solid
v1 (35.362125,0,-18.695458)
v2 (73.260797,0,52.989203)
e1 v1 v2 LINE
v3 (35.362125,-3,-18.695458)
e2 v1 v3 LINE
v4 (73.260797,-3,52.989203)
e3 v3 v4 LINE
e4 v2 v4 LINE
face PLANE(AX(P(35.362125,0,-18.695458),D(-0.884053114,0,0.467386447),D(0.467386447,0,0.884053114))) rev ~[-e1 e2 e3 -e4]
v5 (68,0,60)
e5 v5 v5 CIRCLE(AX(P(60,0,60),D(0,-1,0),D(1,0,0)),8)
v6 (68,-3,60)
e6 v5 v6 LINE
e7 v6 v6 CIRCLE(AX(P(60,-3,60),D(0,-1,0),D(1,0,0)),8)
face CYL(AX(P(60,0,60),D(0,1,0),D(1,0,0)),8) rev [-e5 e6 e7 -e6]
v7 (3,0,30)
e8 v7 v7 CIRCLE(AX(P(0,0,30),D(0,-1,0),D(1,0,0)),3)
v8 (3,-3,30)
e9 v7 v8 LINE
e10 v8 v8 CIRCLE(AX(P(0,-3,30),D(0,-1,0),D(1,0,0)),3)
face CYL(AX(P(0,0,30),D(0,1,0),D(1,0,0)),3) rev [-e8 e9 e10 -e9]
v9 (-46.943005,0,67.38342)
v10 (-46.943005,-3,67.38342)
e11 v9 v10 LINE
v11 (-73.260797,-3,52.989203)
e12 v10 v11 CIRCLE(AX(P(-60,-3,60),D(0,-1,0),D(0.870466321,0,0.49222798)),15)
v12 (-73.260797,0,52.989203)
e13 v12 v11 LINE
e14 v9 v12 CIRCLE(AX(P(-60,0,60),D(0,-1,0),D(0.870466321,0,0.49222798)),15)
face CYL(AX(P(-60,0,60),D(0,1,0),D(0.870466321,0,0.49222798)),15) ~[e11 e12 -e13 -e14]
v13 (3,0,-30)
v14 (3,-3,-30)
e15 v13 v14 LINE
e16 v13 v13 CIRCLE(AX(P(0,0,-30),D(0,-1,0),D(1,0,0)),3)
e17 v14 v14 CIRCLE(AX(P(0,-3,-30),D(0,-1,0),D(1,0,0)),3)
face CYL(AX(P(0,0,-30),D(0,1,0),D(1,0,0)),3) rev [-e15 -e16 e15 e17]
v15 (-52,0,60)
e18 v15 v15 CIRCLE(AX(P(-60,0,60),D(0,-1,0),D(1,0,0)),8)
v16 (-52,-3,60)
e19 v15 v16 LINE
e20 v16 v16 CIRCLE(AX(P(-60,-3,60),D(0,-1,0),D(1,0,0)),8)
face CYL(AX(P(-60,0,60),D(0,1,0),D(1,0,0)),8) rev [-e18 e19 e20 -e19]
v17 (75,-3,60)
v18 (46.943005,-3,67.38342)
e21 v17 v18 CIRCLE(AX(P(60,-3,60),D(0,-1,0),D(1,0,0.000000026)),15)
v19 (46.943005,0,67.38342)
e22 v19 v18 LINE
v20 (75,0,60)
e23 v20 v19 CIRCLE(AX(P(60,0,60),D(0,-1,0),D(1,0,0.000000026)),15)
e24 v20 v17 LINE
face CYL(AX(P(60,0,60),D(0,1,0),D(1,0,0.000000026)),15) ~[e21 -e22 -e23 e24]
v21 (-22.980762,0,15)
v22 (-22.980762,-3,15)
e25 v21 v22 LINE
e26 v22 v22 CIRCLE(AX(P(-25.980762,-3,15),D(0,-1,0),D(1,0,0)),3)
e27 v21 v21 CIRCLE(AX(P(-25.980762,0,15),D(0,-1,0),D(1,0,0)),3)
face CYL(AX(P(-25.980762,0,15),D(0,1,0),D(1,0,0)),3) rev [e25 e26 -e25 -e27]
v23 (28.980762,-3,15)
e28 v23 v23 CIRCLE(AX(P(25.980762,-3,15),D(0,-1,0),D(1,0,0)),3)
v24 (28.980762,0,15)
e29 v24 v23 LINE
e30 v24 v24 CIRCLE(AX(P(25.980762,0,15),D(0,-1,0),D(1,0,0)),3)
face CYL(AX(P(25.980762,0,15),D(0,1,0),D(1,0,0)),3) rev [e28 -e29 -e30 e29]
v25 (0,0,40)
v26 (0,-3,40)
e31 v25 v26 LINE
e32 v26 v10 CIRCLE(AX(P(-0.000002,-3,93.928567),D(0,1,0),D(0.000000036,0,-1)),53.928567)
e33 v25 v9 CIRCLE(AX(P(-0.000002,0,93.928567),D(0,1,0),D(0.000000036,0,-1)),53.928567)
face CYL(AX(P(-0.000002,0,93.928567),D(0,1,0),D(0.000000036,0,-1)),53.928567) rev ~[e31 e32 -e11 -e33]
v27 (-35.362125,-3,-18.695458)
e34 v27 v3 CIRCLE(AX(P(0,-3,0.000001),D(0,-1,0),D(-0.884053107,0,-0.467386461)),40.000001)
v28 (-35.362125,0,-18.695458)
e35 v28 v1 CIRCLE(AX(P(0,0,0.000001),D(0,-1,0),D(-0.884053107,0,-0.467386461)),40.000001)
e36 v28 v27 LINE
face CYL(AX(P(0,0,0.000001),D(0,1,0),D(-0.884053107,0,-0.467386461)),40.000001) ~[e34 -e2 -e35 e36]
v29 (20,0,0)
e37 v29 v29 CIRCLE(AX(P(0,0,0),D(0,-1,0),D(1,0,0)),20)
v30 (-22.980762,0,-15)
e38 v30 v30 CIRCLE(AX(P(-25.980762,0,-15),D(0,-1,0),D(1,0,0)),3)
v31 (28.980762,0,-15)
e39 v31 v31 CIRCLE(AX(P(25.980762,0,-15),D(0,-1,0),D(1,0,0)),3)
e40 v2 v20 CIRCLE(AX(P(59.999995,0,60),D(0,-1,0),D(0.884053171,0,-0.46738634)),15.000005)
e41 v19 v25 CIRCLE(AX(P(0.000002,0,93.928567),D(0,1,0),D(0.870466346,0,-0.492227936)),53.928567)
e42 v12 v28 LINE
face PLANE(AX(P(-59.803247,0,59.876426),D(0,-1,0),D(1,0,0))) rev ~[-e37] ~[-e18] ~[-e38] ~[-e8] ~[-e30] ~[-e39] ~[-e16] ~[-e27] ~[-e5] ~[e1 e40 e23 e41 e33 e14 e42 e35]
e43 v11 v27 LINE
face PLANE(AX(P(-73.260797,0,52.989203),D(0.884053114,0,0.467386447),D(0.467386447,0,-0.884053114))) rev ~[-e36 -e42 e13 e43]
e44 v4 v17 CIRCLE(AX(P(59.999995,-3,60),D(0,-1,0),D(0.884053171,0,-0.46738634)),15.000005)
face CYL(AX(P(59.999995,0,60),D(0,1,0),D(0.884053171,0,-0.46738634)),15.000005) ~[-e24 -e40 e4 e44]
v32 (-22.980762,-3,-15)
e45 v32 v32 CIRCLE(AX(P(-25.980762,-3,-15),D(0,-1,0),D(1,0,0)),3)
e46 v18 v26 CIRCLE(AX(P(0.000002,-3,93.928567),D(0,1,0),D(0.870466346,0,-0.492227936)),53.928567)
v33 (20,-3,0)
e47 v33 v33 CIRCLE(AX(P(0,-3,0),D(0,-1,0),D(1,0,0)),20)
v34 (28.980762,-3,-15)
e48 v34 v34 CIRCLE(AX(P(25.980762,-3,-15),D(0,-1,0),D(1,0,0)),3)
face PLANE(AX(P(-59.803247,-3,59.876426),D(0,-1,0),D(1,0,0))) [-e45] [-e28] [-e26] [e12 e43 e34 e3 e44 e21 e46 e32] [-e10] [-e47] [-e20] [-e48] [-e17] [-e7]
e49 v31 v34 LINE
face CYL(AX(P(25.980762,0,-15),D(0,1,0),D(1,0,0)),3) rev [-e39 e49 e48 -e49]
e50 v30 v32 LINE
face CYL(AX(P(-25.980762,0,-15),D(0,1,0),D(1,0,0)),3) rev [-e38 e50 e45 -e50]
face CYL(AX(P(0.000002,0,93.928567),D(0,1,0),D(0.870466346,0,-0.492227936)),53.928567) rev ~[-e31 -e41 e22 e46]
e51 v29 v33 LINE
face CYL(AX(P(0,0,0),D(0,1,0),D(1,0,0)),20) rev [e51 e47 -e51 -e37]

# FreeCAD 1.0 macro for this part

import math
import FreeCAD as App
import Part
import Sketcher

V = App.Vector

doc = App.newDocument("Part")
body = doc.addObject("PartDesign::Body", "Body")

# Sketch on XZ plane
sketch1 = body.newObject("Sketcher::SketchObject", "Sketch")
sketch1.AttachmentSupport = (doc.getObject("XZ_Plane"), [""])
sketch1.MapMode = "FlatFace"
sketch1.addGeometry([
    Part.ArcOfCircle(Part.Circle(V(-60, 60, 0), V(0, 0, 1), 15), math.radians(29), math.radians(208)),  # 0
    Part.LineSegment(V(-73.3, 53, 0), V(-35.4, -18.7, 0)),  # 1
    Part.ArcOfCircle(Part.Circle(V(0, 0, 0), V(0, 0, 1), 40), math.radians(-152), math.radians(-28)),  # 2
    Part.LineSegment(V(35.4, -18.7, 0), V(73.3, 53, 0)),  # 3
    Part.ArcOfCircle(Part.Circle(V(60, 60, 0), V(0, 0, 1), 15), math.radians(-28), math.radians(0)),  # 4
    Part.ArcOfCircle(Part.Circle(V(60, 60, 0), V(0, 0, 1), 15), math.radians(0), math.radians(151)),  # 5
    Part.ArcOfCircle(Part.Circle(V(0, 93.9, 0), V(0, 0, 1), 53.9), math.radians(-90), math.radians(-29)),  # 6
    Part.ArcOfCircle(Part.Circle(V(0, 93.9, 0), V(0, 0, 1), 53.9), math.radians(-151), math.radians(-90)),  # 7
    Part.Circle(V(-60, 60, 0), V(0, 0, 1), 8),  # 8
    Part.Circle(V(0, 0, 0), V(0, 0, 1), 20),  # 9
    Part.Circle(V(60, 60, 0), V(0, 0, 1), 8),  # 10
    Part.Circle(V(26, 15, 0), V(0, 0, 1), 3),  # 11
    Part.Circle(V(0, 30, 0), V(0, 0, 1), 3),  # 12
    Part.Circle(V(-26, -15, 0), V(0, 0, 1), 3),  # 13
    Part.Circle(V(0, -30, 0), V(0, 0, 1), 3),  # 14
    Part.Circle(V(26, -15, 0), V(0, 0, 1), 3),  # 15
    Part.Circle(V(-26, 15, 0), V(0, 0, 1), 3),  # 16
], False)
sketch1.addConstraint([
    Sketcher.Constraint("Tangent", 0, 2, 1, 1),
    Sketcher.Constraint("Tangent", 1, 2, 2, 1),
    Sketcher.Constraint("Tangent", 2, 2, 3, 1),
    Sketcher.Constraint("Tangent", 3, 2, 4, 1),
    Sketcher.Constraint("Tangent", 4, 2, 5, 1),
    Sketcher.Constraint("Tangent", 5, 2, 6, 2),
    Sketcher.Constraint("Tangent", 6, 1, 7, 2),
    Sketcher.Constraint("Tangent", 7, 1, 0, 1),
    Sketcher.Constraint("Coincident", 2, 3, -1, 1),
    Sketcher.Constraint("Coincident", 9, 3, -1, 1),
    Sketcher.Constraint("Coincident", 8, 3, 0, 3),
    Sketcher.Constraint("Coincident", 10, 3, 4, 3),
    Sketcher.Constraint("Equal", 0, 5),
    Sketcher.Constraint("Equal", 6, 7),
    Sketcher.Constraint("Equal", 8, 10),
    Sketcher.Constraint("Equal", 11, 12),
    Sketcher.Constraint("Equal", 12, 13),
    Sketcher.Constraint("Equal", 13, 14),
    Sketcher.Constraint("Equal", 14, 15),
    Sketcher.Constraint("Equal", 15, 16),
    Sketcher.Constraint("Symmetric", 11, 3, 13, 3, -1, 1),
    Sketcher.Constraint("Symmetric", 12, 3, 14, 3, -1, 1),
    Sketcher.Constraint("Symmetric", 15, 3, 16, 3, -1, 1),
    Sketcher.Constraint("Symmetric", 0, 3, 4, 3, -2),
    Sketcher.Constraint("Symmetric", 13, 3, 15, 3, -2),
    Sketcher.Constraint("PointOnObject", 6, 3, -2),
    Sketcher.Constraint("PointOnObject", 12, 3, -2),
    Sketcher.Constraint("PointOnObject", 6, 1, -2),
    Sketcher.Constraint("Horizontal", 10, 3, 4, 2),
    Sketcher.Constraint("Diameter", 8, 16.0),
    Sketcher.Constraint("Diameter", 9, 40.0),
    Sketcher.Constraint("Diameter", 11, 6.0),
    Sketcher.Constraint("Radius", 0, 15.0),
    Sketcher.Constraint("Radius", 2, 40.000001),
    Sketcher.Constraint("DistanceX", 0, 3, -1, 1, 60.0),
    Sketcher.Constraint("DistanceY", -1, 1, 0, 3, 60.0),
    Sketcher.Constraint("DistanceY", -1, 1, 11, 3, 15.0),
    Sketcher.Constraint("DistanceY", -1, 1, 12, 3, 30.0),
    Sketcher.Constraint("DistanceY", -1, 1, 6, 1, 40.0),
    Sketcher.Constraint("DistanceX", -1, 1, 11, 3, 25.980762),
])
pad1 = body.newObject("PartDesign::Pad", "Pad")
pad1.Profile = sketch1
pad1.Length = 3

doc.recompute()
